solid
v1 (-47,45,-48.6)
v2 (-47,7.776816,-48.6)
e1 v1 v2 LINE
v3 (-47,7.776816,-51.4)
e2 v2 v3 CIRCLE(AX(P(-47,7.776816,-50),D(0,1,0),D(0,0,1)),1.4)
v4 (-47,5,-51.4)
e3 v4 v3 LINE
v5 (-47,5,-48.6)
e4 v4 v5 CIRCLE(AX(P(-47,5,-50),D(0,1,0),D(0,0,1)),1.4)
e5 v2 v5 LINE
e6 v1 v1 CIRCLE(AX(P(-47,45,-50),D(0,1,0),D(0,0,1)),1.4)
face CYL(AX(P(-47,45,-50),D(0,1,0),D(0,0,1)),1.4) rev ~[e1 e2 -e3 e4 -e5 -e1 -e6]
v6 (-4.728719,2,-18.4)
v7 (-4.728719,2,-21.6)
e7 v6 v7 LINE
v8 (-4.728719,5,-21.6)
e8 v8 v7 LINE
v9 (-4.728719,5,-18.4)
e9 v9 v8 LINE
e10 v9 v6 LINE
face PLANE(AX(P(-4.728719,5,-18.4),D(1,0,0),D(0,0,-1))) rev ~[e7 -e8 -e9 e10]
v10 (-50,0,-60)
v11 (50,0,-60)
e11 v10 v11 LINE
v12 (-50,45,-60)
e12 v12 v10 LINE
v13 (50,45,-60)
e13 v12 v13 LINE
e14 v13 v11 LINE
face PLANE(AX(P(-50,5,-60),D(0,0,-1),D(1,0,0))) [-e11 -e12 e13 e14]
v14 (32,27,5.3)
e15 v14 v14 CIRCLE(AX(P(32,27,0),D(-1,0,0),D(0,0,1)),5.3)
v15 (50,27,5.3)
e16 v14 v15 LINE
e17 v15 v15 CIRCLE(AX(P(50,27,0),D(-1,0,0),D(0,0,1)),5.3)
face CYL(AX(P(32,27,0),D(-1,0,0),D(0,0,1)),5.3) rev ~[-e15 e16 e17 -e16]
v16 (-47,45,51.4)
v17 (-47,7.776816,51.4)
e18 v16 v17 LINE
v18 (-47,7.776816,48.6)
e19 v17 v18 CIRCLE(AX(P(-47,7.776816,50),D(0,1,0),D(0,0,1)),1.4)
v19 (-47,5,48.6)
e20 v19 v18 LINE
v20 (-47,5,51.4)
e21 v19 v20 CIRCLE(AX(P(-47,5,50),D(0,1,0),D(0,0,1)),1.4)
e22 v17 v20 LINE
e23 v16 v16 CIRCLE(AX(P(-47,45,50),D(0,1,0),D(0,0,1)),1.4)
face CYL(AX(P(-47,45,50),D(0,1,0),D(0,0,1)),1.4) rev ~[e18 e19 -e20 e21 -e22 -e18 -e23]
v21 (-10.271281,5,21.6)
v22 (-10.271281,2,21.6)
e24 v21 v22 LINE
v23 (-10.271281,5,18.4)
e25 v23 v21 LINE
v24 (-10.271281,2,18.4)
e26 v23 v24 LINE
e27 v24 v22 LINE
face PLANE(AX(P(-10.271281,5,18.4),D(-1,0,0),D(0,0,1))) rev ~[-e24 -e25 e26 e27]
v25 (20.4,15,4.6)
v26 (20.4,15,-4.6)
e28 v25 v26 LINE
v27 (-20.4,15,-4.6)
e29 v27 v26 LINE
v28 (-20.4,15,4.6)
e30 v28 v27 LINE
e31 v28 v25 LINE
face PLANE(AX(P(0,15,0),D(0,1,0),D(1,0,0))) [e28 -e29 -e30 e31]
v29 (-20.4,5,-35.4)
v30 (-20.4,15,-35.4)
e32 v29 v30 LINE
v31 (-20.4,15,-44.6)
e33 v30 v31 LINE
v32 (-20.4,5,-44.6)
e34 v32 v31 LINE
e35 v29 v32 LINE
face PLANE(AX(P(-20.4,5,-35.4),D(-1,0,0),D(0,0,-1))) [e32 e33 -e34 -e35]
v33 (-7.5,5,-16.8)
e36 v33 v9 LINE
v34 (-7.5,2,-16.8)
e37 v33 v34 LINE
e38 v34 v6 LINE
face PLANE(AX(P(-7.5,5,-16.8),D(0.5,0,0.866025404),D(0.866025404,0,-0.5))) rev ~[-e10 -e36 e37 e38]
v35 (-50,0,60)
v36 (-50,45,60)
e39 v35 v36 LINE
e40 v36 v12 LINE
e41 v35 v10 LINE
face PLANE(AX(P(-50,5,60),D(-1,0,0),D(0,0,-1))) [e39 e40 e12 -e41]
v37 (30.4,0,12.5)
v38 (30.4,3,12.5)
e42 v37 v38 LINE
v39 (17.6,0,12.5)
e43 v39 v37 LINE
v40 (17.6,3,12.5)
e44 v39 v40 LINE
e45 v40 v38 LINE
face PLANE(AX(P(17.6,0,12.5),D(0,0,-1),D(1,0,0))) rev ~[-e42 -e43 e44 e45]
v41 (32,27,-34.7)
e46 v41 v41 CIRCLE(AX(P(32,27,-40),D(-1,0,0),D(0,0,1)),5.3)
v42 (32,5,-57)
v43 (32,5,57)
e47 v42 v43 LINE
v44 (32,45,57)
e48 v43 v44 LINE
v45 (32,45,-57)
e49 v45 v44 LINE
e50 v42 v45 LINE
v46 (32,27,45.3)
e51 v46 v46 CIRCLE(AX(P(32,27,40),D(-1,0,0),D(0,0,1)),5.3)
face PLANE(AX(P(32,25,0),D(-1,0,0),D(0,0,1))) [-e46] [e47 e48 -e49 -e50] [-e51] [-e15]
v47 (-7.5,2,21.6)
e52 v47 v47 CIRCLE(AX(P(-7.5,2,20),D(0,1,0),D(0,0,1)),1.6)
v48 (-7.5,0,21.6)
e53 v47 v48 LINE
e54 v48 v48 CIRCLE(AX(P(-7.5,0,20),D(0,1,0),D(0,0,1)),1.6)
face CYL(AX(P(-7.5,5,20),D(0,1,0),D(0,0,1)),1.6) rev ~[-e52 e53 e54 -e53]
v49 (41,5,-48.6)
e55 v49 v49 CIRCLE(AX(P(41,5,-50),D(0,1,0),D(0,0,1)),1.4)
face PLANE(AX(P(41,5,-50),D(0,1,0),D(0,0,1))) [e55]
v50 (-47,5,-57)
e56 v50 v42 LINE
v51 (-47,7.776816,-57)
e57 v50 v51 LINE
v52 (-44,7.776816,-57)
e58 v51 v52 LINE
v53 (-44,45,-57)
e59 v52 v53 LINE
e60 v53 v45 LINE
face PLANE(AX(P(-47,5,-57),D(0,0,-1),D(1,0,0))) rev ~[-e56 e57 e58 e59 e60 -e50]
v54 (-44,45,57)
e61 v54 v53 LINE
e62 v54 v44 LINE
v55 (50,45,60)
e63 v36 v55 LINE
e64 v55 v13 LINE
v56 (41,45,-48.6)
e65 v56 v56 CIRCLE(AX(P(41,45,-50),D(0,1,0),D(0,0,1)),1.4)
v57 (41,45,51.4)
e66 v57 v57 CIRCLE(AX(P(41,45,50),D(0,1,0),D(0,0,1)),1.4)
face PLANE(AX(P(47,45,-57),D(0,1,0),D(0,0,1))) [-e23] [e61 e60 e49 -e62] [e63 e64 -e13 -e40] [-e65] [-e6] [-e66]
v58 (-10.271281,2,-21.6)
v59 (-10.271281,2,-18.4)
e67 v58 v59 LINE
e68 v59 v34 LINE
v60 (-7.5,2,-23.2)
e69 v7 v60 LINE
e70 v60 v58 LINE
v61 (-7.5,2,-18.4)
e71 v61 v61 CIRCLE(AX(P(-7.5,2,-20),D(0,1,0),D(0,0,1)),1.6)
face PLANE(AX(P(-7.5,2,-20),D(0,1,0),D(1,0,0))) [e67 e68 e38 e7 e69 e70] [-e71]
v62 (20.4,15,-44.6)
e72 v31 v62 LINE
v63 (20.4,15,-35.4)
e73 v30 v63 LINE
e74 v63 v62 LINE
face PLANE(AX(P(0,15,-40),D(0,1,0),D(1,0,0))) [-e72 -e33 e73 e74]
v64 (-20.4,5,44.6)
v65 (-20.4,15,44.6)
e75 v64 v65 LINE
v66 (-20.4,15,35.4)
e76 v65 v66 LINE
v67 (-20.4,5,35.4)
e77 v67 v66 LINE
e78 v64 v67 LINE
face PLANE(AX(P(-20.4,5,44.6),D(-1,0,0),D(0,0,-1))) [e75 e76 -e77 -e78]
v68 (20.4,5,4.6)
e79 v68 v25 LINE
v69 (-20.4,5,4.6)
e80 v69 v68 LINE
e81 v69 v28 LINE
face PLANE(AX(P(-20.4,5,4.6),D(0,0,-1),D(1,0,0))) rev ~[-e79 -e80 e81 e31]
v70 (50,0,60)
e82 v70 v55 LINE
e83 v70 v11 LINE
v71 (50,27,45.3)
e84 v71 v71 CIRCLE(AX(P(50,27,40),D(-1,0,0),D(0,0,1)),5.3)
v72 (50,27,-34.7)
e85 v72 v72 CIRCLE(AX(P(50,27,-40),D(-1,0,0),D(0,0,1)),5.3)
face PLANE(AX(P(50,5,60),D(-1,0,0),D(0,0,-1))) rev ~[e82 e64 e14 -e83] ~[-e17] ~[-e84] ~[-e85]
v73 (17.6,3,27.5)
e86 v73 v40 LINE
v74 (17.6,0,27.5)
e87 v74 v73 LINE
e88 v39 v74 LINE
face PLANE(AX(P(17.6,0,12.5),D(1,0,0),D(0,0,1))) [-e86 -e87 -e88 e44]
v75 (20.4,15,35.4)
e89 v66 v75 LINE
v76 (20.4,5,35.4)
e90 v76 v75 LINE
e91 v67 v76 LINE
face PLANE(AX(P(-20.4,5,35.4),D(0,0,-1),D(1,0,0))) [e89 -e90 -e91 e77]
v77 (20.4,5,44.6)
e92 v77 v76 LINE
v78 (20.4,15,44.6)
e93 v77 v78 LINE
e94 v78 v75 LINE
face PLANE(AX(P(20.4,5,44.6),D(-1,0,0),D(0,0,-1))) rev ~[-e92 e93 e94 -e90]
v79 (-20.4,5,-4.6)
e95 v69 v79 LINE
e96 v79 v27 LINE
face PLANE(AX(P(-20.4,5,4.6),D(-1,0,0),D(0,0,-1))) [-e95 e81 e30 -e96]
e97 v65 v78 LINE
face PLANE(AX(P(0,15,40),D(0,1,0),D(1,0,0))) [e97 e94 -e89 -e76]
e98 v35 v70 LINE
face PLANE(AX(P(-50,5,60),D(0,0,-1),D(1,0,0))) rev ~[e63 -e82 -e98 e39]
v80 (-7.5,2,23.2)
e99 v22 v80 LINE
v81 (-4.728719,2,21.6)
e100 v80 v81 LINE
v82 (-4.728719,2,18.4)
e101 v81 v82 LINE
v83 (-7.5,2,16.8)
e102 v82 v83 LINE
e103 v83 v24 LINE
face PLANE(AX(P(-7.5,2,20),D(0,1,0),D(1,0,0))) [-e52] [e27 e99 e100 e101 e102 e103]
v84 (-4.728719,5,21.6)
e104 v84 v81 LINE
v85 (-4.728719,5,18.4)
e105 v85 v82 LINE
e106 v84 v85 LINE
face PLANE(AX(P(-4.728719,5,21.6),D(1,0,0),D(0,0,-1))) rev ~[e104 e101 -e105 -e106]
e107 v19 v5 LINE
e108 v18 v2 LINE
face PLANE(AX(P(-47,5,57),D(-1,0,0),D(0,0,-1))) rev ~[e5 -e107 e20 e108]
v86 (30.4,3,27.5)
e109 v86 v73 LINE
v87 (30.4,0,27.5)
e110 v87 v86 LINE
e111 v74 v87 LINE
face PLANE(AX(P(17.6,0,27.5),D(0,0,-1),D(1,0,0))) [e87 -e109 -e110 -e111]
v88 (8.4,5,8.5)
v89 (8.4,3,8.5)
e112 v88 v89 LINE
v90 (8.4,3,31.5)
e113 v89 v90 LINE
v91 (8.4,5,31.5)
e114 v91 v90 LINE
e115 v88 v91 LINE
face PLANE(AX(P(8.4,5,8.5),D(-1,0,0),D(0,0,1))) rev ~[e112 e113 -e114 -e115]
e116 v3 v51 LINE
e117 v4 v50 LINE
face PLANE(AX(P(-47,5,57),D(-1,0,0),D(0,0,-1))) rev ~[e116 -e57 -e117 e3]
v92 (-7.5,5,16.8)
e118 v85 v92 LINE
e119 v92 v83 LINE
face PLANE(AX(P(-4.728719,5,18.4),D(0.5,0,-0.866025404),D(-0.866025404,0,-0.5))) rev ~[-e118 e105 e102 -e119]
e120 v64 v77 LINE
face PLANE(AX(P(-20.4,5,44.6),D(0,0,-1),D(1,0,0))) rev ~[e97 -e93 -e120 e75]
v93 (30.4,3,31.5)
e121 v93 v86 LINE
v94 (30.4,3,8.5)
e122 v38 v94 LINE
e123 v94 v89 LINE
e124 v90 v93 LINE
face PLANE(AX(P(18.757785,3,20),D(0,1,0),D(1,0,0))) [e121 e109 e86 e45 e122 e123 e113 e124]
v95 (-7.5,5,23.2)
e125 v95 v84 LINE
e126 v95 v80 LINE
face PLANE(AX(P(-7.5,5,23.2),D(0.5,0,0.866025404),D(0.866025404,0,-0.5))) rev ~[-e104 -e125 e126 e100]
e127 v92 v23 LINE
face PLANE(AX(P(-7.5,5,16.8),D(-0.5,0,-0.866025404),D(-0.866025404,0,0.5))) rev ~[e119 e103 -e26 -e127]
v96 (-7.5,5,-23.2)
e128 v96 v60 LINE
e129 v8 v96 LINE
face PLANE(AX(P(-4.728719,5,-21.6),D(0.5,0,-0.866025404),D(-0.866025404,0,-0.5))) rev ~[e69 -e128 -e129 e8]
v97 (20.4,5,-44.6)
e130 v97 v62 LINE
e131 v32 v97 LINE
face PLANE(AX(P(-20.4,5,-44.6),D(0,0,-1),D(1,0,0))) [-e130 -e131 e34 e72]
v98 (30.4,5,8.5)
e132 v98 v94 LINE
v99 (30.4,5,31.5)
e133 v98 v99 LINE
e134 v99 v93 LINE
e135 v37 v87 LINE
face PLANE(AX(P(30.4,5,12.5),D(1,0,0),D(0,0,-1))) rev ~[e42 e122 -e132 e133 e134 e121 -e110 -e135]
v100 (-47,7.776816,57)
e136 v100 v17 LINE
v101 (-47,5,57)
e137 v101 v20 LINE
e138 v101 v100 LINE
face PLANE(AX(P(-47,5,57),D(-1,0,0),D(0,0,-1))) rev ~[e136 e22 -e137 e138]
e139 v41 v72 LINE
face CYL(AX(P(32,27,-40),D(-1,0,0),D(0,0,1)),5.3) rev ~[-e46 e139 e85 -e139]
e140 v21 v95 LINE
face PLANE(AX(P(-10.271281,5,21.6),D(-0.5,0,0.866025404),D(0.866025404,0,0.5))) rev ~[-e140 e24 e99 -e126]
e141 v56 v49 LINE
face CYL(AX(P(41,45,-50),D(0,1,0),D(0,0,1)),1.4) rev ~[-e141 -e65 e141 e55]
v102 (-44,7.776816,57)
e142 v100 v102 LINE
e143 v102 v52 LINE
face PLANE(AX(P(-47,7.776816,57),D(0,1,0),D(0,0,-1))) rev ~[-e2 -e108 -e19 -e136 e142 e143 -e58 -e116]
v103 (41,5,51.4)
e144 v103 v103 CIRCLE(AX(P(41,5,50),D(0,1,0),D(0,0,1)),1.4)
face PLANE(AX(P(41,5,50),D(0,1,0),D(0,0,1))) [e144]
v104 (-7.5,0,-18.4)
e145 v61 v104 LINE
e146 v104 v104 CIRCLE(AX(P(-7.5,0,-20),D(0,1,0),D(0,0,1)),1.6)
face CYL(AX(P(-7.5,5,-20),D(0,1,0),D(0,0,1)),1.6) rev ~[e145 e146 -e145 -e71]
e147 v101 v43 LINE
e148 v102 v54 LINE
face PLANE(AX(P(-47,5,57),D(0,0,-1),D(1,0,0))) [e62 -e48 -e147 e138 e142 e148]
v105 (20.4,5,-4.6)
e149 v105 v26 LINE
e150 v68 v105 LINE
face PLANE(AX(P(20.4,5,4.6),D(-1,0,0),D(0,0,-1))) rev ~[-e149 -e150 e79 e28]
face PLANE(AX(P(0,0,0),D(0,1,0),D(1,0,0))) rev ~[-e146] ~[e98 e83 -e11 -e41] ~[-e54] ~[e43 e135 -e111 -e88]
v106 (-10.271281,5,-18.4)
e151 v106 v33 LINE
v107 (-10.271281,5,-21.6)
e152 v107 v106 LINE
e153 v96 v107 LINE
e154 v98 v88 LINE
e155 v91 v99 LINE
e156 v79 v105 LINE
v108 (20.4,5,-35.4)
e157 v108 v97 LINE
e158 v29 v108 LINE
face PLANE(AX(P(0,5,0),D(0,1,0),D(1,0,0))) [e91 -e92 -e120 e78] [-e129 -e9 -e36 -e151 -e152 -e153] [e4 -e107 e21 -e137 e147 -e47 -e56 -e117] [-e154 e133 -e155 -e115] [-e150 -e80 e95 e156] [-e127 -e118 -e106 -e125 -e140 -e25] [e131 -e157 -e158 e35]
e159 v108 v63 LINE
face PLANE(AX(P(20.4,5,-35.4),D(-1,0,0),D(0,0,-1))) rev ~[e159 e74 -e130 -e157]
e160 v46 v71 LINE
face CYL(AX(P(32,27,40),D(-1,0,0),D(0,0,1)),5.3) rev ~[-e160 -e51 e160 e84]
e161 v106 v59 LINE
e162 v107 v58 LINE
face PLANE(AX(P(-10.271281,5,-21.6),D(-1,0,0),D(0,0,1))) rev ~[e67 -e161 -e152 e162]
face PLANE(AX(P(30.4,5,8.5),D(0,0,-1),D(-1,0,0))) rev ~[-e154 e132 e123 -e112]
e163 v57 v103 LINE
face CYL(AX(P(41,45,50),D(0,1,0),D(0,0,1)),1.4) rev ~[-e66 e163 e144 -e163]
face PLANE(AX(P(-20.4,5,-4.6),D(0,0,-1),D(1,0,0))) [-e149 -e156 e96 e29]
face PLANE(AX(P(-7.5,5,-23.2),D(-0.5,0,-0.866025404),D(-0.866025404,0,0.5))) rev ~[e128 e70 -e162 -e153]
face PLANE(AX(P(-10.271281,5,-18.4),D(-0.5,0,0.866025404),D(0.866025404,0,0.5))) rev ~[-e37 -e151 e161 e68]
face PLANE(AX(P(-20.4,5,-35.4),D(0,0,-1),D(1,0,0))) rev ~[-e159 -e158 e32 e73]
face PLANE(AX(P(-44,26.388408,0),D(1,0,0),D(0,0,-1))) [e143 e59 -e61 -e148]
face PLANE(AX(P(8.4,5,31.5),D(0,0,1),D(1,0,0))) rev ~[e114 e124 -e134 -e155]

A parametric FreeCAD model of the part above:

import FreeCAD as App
import Part
import Sketcher
Q = App.Units.Quantity

doc = App.newDocument("Part")
body = doc.addObject("PartDesign::Body", "Body")

sketch1 = doc.addObject("Sketcher::SketchObject", "Sketch")
body.addObject(sketch1)
sketch1.AttachmentSupport = (doc.XZ_Plane, [""])
sketch1.MapMode = "FlatFace"
sketch1.addGeometry(Part.LineSegment(App.Vector(-50, -60, 0), App.Vector(-50, 60, 0)), False)
sketch1.addGeometry(Part.LineSegment(App.Vector(-50, 60, 0), App.Vector(50, 60, 0)), False)
sketch1.addGeometry(Part.LineSegment(App.Vector(50, 60, 0), App.Vector(50, -60, 0)), False)
sketch1.addGeometry(Part.LineSegment(App.Vector(50, -60, 0), App.Vector(-50, -60, 0)), False)
sketch1.addConstraint(Sketcher.Constraint("Coincident", 0, 2, 1, 1))
sketch1.addConstraint(Sketcher.Constraint("Coincident", 1, 2, 2, 1))
sketch1.addConstraint(Sketcher.Constraint("Coincident", 2, 2, 3, 1))
sketch1.addConstraint(Sketcher.Constraint("Coincident", 3, 2, 0, 1))
sketch1.addConstraint(Sketcher.Constraint("Vertical", 0))
sketch1.addConstraint(Sketcher.Constraint("Horizontal", 1))
sketch1.addConstraint(Sketcher.Constraint("Vertical", 2))
sketch1.addConstraint(Sketcher.Constraint("Horizontal", 3))
sketch1.addConstraint(Sketcher.Constraint("Symmetric", 0, 2, 2, 2, -1, 1))
sketch1.addConstraint(Sketcher.Constraint("DistanceX", 1, 1, 1, 2, 100.0))
sketch1.addConstraint(Sketcher.Constraint("DistanceY", 0, 1, 0, 2, 120.0))
pad1 = doc.addObject("PartDesign::Pad", "Pad")
body.addObject(pad1)
pad1.Profile = sketch1
pad1.Length = 5
pad1.Reversed = True

sketch2 = doc.addObject("Sketcher::SketchObject", "Sketch001")
body.addObject(sketch2)
sketch2.AttachmentSupport = (doc.XZ_Plane, [""])
sketch2.MapMode = "FlatFace"
sketch2.AttachmentOffset = App.Placement(App.Vector(0, 0, -5), App.Rotation())
sketch2.addGeometry(Part.LineSegment(App.Vector(-50, -60, 0), App.Vector(-50, 60, 0)), False)
sketch2.addGeometry(Part.LineSegment(App.Vector(-50, 60, 0), App.Vector(50, 60, 0)), False)
sketch2.addGeometry(Part.LineSegment(App.Vector(50, 60, 0), App.Vector(50, -60, 0)), False)
sketch2.addGeometry(Part.LineSegment(App.Vector(50, -60, 0), App.Vector(-50, -60, 0)), False)
sketch2.addGeometry(Part.LineSegment(App.Vector(47, 57, 0), App.Vector(-47, 57, 0)), False)
sketch2.addGeometry(Part.LineSegment(App.Vector(-47, 57, 0), App.Vector(-47, -57, 0)), False)
sketch2.addGeometry(Part.LineSegment(App.Vector(-47, -57, 0), App.Vector(47, -57, 0)), False)
sketch2.addGeometry(Part.LineSegment(App.Vector(47, -57, 0), App.Vector(47, 57, 0)), False)
sketch2.addConstraint(Sketcher.Constraint("Coincident", 0, 2, 1, 1))
sketch2.addConstraint(Sketcher.Constraint("Coincident", 1, 2, 2, 1))
sketch2.addConstraint(Sketcher.Constraint("Coincident", 2, 2, 3, 1))
sketch2.addConstraint(Sketcher.Constraint("Coincident", 3, 2, 0, 1))
sketch2.addConstraint(Sketcher.Constraint("Coincident", 4, 2, 5, 1))
sketch2.addConstraint(Sketcher.Constraint("Coincident", 5, 2, 6, 1))
sketch2.addConstraint(Sketcher.Constraint("Coincident", 6, 2, 7, 1))
sketch2.addConstraint(Sketcher.Constraint("Coincident", 7, 2, 4, 1))
sketch2.addConstraint(Sketcher.Constraint("Vertical", 0))
sketch2.addConstraint(Sketcher.Constraint("Horizontal", 1))
sketch2.addConstraint(Sketcher.Constraint("Vertical", 2))
sketch2.addConstraint(Sketcher.Constraint("Horizontal", 3))
sketch2.addConstraint(Sketcher.Constraint("Horizontal", 4))
sketch2.addConstraint(Sketcher.Constraint("Vertical", 5))
sketch2.addConstraint(Sketcher.Constraint("Horizontal", 6))
sketch2.addConstraint(Sketcher.Constraint("Vertical", 7))
sketch2.addConstraint(Sketcher.Constraint("Symmetric", 0, 2, 2, 2, -1, 1))
sketch2.addConstraint(Sketcher.Constraint("Symmetric", 4, 2, 6, 2, -1, 1))
sketch2.addConstraint(Sketcher.Constraint("DistanceX", 1, 1, 1, 2, 100.0))
sketch2.addConstraint(Sketcher.Constraint("DistanceX", 4, 2, 4, 1, 94.0))
sketch2.addConstraint(Sketcher.Constraint("DistanceY", 0, 1, 0, 2, 120.0))
sketch2.addConstraint(Sketcher.Constraint("DistanceY", 5, 2, 5, 1, 114.0))
pad2 = doc.addObject("PartDesign::Pad", "Pad001")
body.addObject(pad2)
pad2.Profile = sketch2
pad2.Length = 40
pad2.Reversed = True

sketch3 = doc.addObject("Sketcher::SketchObject", "Sketch002")
body.addObject(sketch3)
sketch3.AttachmentSupport = (doc.XZ_Plane, [""])
sketch3.MapMode = "FlatFace"
sketch3.AttachmentOffset = App.Placement(App.Vector(0, 0, -5), App.Rotation())
sketch3.addGeometry(Part.LineSegment(App.Vector(-20.4, -44.6, 0), App.Vector(-20.4, -35.4, 0)), False)
sketch3.addGeometry(Part.LineSegment(App.Vector(-20.4, -35.4, 0), App.Vector(20.4, -35.4, 0)), False)
sketch3.addGeometry(Part.LineSegment(App.Vector(20.4, -35.4, 0), App.Vector(20.4, -44.6, 0)), False)
sketch3.addGeometry(Part.LineSegment(App.Vector(20.4, -44.6, 0), App.Vector(-20.4, -44.6, 0)), False)
sketch3.addGeometry(Part.LineSegment(App.Vector(-20.4, -4.6, 0), App.Vector(-20.4, 4.6, 0)), False)
sketch3.addGeometry(Part.LineSegment(App.Vector(-20.4, 4.6, 0), App.Vector(20.4, 4.6, 0)), False)
sketch3.addGeometry(Part.LineSegment(App.Vector(20.4, 4.6, 0), App.Vector(20.4, -4.6, 0)), False)
sketch3.addGeometry(Part.LineSegment(App.Vector(20.4, -4.6, 0), App.Vector(-20.4, -4.6, 0)), False)
sketch3.addGeometry(Part.LineSegment(App.Vector(-20.4, 35.4, 0), App.Vector(-20.4, 44.6, 0)), False)
sketch3.addGeometry(Part.LineSegment(App.Vector(-20.4, 44.6, 0), App.Vector(20.4, 44.6, 0)), False)
sketch3.addGeometry(Part.LineSegment(App.Vector(20.4, 44.6, 0), App.Vector(20.4, 35.4, 0)), False)
sketch3.addGeometry(Part.LineSegment(App.Vector(20.4, 35.4, 0), App.Vector(-20.4, 35.4, 0)), False)
sketch3.addConstraint(Sketcher.Constraint("Coincident", 0, 2, 1, 1))
sketch3.addConstraint(Sketcher.Constraint("Coincident", 1, 2, 2, 1))
sketch3.addConstraint(Sketcher.Constraint("Coincident", 2, 2, 3, 1))
sketch3.addConstraint(Sketcher.Constraint("Coincident", 3, 2, 0, 1))
sketch3.addConstraint(Sketcher.Constraint("Coincident", 4, 2, 5, 1))
sketch3.addConstraint(Sketcher.Constraint("Coincident", 5, 2, 6, 1))
sketch3.addConstraint(Sketcher.Constraint("Coincident", 6, 2, 7, 1))
sketch3.addConstraint(Sketcher.Constraint("Coincident", 7, 2, 4, 1))
sketch3.addConstraint(Sketcher.Constraint("Coincident", 8, 2, 9, 1))
sketch3.addConstraint(Sketcher.Constraint("Coincident", 9, 2, 10, 1))
sketch3.addConstraint(Sketcher.Constraint("Coincident", 10, 2, 11, 1))
sketch3.addConstraint(Sketcher.Constraint("Coincident", 11, 2, 8, 1))
sketch3.addConstraint(Sketcher.Constraint("Vertical", 0))
sketch3.addConstraint(Sketcher.Constraint("Horizontal", 1))
sketch3.addConstraint(Sketcher.Constraint("Vertical", 2))
sketch3.addConstraint(Sketcher.Constraint("Horizontal", 3))
sketch3.addConstraint(Sketcher.Constraint("Vertical", 4))
sketch3.addConstraint(Sketcher.Constraint("Horizontal", 5))
sketch3.addConstraint(Sketcher.Constraint("Vertical", 6))
sketch3.addConstraint(Sketcher.Constraint("Horizontal", 7))
sketch3.addConstraint(Sketcher.Constraint("Vertical", 8))
sketch3.addConstraint(Sketcher.Constraint("Horizontal", 9))
sketch3.addConstraint(Sketcher.Constraint("Vertical", 10))
sketch3.addConstraint(Sketcher.Constraint("Horizontal", 11))
sketch3.addConstraint(Sketcher.Constraint("Symmetric", 4, 2, 6, 2, -1, 1))
sketch3.addConstraint(Sketcher.Constraint("Symmetric", 2, 2, 8, 2, -1, 1))
sketch3.addConstraint(Sketcher.Constraint("Symmetric", 0, 2, 10, 2, -1, 1))
sketch3.addConstraint(Sketcher.Constraint("Vertical", 3, 2, 4, 2))
sketch3.addConstraint(Sketcher.Constraint("Vertical", 2, 2, 5, 2))
sketch3.addConstraint(Sketcher.Constraint("Equal", 2, 4))
sketch3.addConstraint(Sketcher.Constraint("DistanceX", 1, 1, 1, 2, 40.8))
sketch3.addConstraint(Sketcher.Constraint("DistanceY", 0, 1, 0, 2, 9.2))
sketch3.addConstraint(Sketcher.Constraint("DistanceY", 0, 2, 4, 2, 40.0))
pad3 = doc.addObject("PartDesign::Pad", "Pad002")
body.addObject(pad3)
pad3.Profile = sketch3
pad3.Length = 10
pad3.Reversed = True

sketch4 = doc.addObject("Sketcher::SketchObject", "Sketch003")
body.addObject(sketch4)
sketch4.AttachmentSupport = (doc.YZ_Plane, [""])
sketch4.MapMode = "FlatFace"
sketch4.AttachmentOffset = App.Placement(App.Vector(0, 0, 47), App.Rotation())
sketch4.addGeometry(Part.LineSegment(App.Vector(45, -57, 0), App.Vector(5, -57, 0)), False)
sketch4.addGeometry(Part.LineSegment(App.Vector(5, -57, 0), App.Vector(5, 57, 0)), False)
sketch4.addGeometry(Part.LineSegment(App.Vector(5, 57, 0), App.Vector(45, 57, 0)), False)
sketch4.addGeometry(Part.LineSegment(App.Vector(45, 57, 0), App.Vector(45, -57, 0)), False)
sketch4.addConstraint(Sketcher.Constraint("Coincident", 0, 2, 1, 1))
sketch4.addConstraint(Sketcher.Constraint("Coincident", 1, 2, 2, 1))
sketch4.addConstraint(Sketcher.Constraint("Coincident", 2, 2, 3, 1))
sketch4.addConstraint(Sketcher.Constraint("Coincident", 3, 2, 0, 1))
sketch4.addConstraint(Sketcher.Constraint("Horizontal", 0))
sketch4.addConstraint(Sketcher.Constraint("Vertical", 1))
sketch4.addConstraint(Sketcher.Constraint("Horizontal", 2))
sketch4.addConstraint(Sketcher.Constraint("Vertical", 3))
sketch4.addConstraint(Sketcher.Constraint("DistanceX", 0, 2, 0, 1, 40.0))
sketch4.addConstraint(Sketcher.Constraint("DistanceY", 1, 1, 1, 2, 114.0))
sketch4.addConstraint(Sketcher.Constraint("DistanceX", -1, 1, 0, 2, 5.0))
sketch4.addConstraint(Sketcher.Constraint("DistanceY", 0, 2, -1, 1, 57.0))
pad4 = doc.addObject("PartDesign::Pad", "Pad003")
body.addObject(pad4)
pad4.Profile = sketch4
pad4.Length = 15
pad4.Reversed = True

sketch5 = doc.addObject("Sketcher::SketchObject", "Sketch004")
body.addObject(sketch5)
sketch5.AttachmentSupport = (doc.YZ_Plane, [""])
sketch5.MapMode = "FlatFace"
sketch5.AttachmentOffset = App.Placement(App.Vector(0, 0, 32), App.Rotation())
sketch5.addGeometry(Part.Circle(App.Vector(27, -40, 0), App.Vector(0, 0, 1), 5.3), False)
sketch5.addGeometry(Part.Circle(App.Vector(27, 0, 0), App.Vector(0, 0, 1), 5.3), False)
sketch5.addGeometry(Part.Circle(App.Vector(27, 40, 0), App.Vector(0, 0, 1), 5.3), False)
sketch5.addConstraint(Sketcher.Constraint("Equal", 0, 1))
sketch5.addConstraint(Sketcher.Constraint("Equal", 1, 2))
sketch5.addConstraint(Sketcher.Constraint("Symmetric", 0, 3, 2, 3, -1))
sketch5.addConstraint(Sketcher.Constraint("PointOnObject", 1, 3, -1))
sketch5.addConstraint(Sketcher.Constraint("Vertical", 0, 3, 1, 3))
sketch5.addConstraint(Sketcher.Constraint("Diameter", 0, 10.6))
sketch5.addConstraint(Sketcher.Constraint("DistanceX", -1, 1, 0, 3, 27.0))
sketch5.addConstraint(Sketcher.Constraint("DistanceY", 0, 3, -1, 1, 40.0))
pocket1 = doc.addObject("PartDesign::Pocket", "Pocket")
body.addObject(pocket1)
pocket1.Profile = sketch5
pocket1.Length = 18
pocket1.Reversed = True

sketch6 = doc.addObject("Sketcher::SketchObject", "Sketch005")
body.addObject(sketch6)
sketch6.AttachmentSupport = (doc.XZ_Plane, [""])
sketch6.MapMode = "FlatFace"
sketch6.AttachmentOffset = App.Placement(App.Vector(0, 0, -5), App.Rotation())
sketch6.addGeometry(Part.Circle(App.Vector(-7.5, 20, 0), App.Vector(0, 0, 1), 1.6), False)
sketch6.addGeometry(Part.Circle(App.Vector(-7.5, -20, 0), App.Vector(0, 0, 1), 1.6), False)
sketch6.addConstraint(Sketcher.Constraint("Equal", 0, 1))
sketch6.addConstraint(Sketcher.Constraint("Symmetric", 0, 3, 1, 3, -1))
sketch6.addConstraint(Sketcher.Constraint("Diameter", 0, 3.2))
sketch6.addConstraint(Sketcher.Constraint("DistanceY", -1, 1, 0, 3, 20.0))
sketch6.addConstraint(Sketcher.Constraint("DistanceX", 0, 3, -1, 1, 7.5))
pocket2 = doc.addObject("PartDesign::Pocket", "Pocket001")
body.addObject(pocket2)
pocket2.Profile = sketch6
pocket2.Type = "ThroughAll"
pocket2.Reversed = True

sketch7 = doc.addObject("Sketcher::SketchObject", "Sketch006")
body.addObject(sketch7)
sketch7.AttachmentSupport = (doc.XZ_Plane, [""])
sketch7.MapMode = "FlatFace"
sketch7.AttachmentOffset = App.Placement(App.Vector(0, 0, -5), App.Rotation())
sketch7.addGeometry(Part.LineSegment(App.Vector(-10.271281, 21.6, 0), App.Vector(-7.5, 23.2, 0)), False)
sketch7.addGeometry(Part.LineSegment(App.Vector(-7.5, 23.2, 0), App.Vector(-4.728719, 21.6, 0)), False)
sketch7.addGeometry(Part.LineSegment(App.Vector(-4.728719, 21.6, 0), App.Vector(-4.728719, 18.4, 0)), False)
sketch7.addGeometry(Part.LineSegment(App.Vector(-4.728719, 18.4, 0), App.Vector(-7.5, 16.8, 0)), False)
sketch7.addGeometry(Part.LineSegment(App.Vector(-7.5, 16.8, 0), App.Vector(-10.271281, 18.4, 0)), False)
sketch7.addGeometry(Part.LineSegment(App.Vector(-10.271281, 18.4, 0), App.Vector(-10.271281, 21.6, 0)), False)
sketch7.addGeometry(Part.LineSegment(App.Vector(-10.271281, -21.6, 0), App.Vector(-10.271281, -18.4, 0)), False)
sketch7.addGeometry(Part.LineSegment(App.Vector(-10.271281, -18.4, 0), App.Vector(-7.5, -16.8, 0)), False)
sketch7.addGeometry(Part.LineSegment(App.Vector(-7.5, -16.8, 0), App.Vector(-4.728719, -18.4, 0)), False)
sketch7.addGeometry(Part.LineSegment(App.Vector(-4.728719, -18.4, 0), App.Vector(-4.728719, -21.6, 0)), False)
sketch7.addGeometry(Part.LineSegment(App.Vector(-4.728719, -21.6, 0), App.Vector(-7.5, -23.2, 0)), False)
sketch7.addGeometry(Part.LineSegment(App.Vector(-7.5, -23.2, 0), App.Vector(-10.271281, -21.6, 0)), False)
sketch7.addConstraint(Sketcher.Constraint("Coincident", 0, 2, 1, 1))
sketch7.addConstraint(Sketcher.Constraint("Coincident", 1, 2, 2, 1))
sketch7.addConstraint(Sketcher.Constraint("Coincident", 2, 2, 3, 1))
sketch7.addConstraint(Sketcher.Constraint("Coincident", 3, 2, 4, 1))
sketch7.addConstraint(Sketcher.Constraint("Coincident", 4, 2, 5, 1))
sketch7.addConstraint(Sketcher.Constraint("Coincident", 5, 2, 0, 1))
sketch7.addConstraint(Sketcher.Constraint("Coincident", 6, 2, 7, 1))
sketch7.addConstraint(Sketcher.Constraint("Coincident", 7, 2, 8, 1))
sketch7.addConstraint(Sketcher.Constraint("Coincident", 8, 2, 9, 1))
sketch7.addConstraint(Sketcher.Constraint("Coincident", 9, 2, 10, 1))
sketch7.addConstraint(Sketcher.Constraint("Coincident", 10, 2, 11, 1))
sketch7.addConstraint(Sketcher.Constraint("Coincident", 11, 2, 6, 1))
sketch7.addConstraint(Sketcher.Constraint("Vertical", 2))
sketch7.addConstraint(Sketcher.Constraint("Vertical", 5))
sketch7.addConstraint(Sketcher.Constraint("Vertical", 6))
sketch7.addConstraint(Sketcher.Constraint("Vertical", 9))
sketch7.addConstraint(Sketcher.Constraint("Symmetric", 4, 2, 6, 2, -1))
sketch7.addConstraint(Sketcher.Constraint("Symmetric", 3, 2, 7, 2, -1))
sketch7.addConstraint(Sketcher.Constraint("Symmetric", 2, 2, 8, 2, -1))
sketch7.addConstraint(Sketcher.Constraint("Symmetric", 0, 2, 10, 2, -1))
sketch7.addConstraint(Sketcher.Constraint("Parallel", 0, 3))
sketch7.addConstraint(Sketcher.Constraint("Parallel", 1, 4))
sketch7.addConstraint(Sketcher.Constraint("Parallel", 3, 7))
sketch7.addConstraint(Sketcher.Constraint("Parallel", 7, 10))
sketch7.addConstraint(Sketcher.Constraint("Parallel", 8, 11))
sketch7.addConstraint(Sketcher.Constraint("Horizontal", 2, 2, 4, 2))
sketch7.addConstraint(Sketcher.Constraint("Horizontal", 1, 2, 5, 2))
sketch7.addConstraint(Sketcher.Constraint("Angle", 0, Q("30 deg")))
sketch7.addConstraint(Sketcher.Constraint("DistanceY", 2, 2, 2, 1, 3.2))
sketch7.addConstraint(Sketcher.Constraint("DistanceY", 6, 2, 5, 2, 40.0))
sketch7.addConstraint(Sketcher.Constraint("Distance", 0, 3.2))
sketch7.addConstraint(Sketcher.Constraint("DistanceX", 0, 2, -1, 1, 7.5))
pocket3 = doc.addObject("PartDesign::Pocket", "Pocket002")
body.addObject(pocket3)
pocket3.Profile = sketch7
pocket3.Length = 3
pocket3.Reversed = True

sketch8 = doc.addObject("Sketcher::SketchObject", "Sketch007")
body.addObject(sketch8)
sketch8.AttachmentSupport = (doc.YZ_Plane, [""])
sketch8.MapMode = "FlatFace"
sketch8.AttachmentOffset = App.Placement(App.Vector(0, 0, -47), App.Rotation())
sketch8.addGeometry(Part.LineSegment(App.Vector(45, 57, 0), App.Vector(7.776816, 57, 0)), False)
sketch8.addGeometry(Part.LineSegment(App.Vector(7.776816, 57, 0), App.Vector(7.776816, -57, 0)), False)
sketch8.addGeometry(Part.LineSegment(App.Vector(7.776816, -57, 0), App.Vector(45, -57, 0)), False)
sketch8.addGeometry(Part.LineSegment(App.Vector(45, -57, 0), App.Vector(45, 57, 0)), False)
sketch8.addConstraint(Sketcher.Constraint("Coincident", 0, 2, 1, 1))
sketch8.addConstraint(Sketcher.Constraint("Coincident", 1, 2, 2, 1))
sketch8.addConstraint(Sketcher.Constraint("Coincident", 2, 2, 3, 1))
sketch8.addConstraint(Sketcher.Constraint("Coincident", 3, 2, 0, 1))
sketch8.addConstraint(Sketcher.Constraint("Horizontal", 0))
sketch8.addConstraint(Sketcher.Constraint("Vertical", 1))
sketch8.addConstraint(Sketcher.Constraint("Horizontal", 2))
sketch8.addConstraint(Sketcher.Constraint("Vertical", 3))
sketch8.addConstraint(Sketcher.Constraint("DistanceY", 1, 2, 1, 1, 114.0))
sketch8.addConstraint(Sketcher.Constraint("DistanceY", -1, 1, 0, 2, 57.0))
sketch8.addConstraint(Sketcher.Constraint("DistanceX", -1, 1, 2, 2, 45.0))
sketch8.addConstraint(Sketcher.Constraint("DistanceX", 0, 2, 0, 1, 37.223184))
pad5 = doc.addObject("PartDesign::Pad", "Pad004")
body.addObject(pad5)
pad5.Profile = sketch8
pad5.Length = 3

sketch9 = doc.addObject("Sketcher::SketchObject", "Sketch008")
body.addObject(sketch9)
sketch9.AttachmentSupport = (doc.XZ_Plane, [""])
sketch9.MapMode = "FlatFace"
sketch9.AttachmentOffset = App.Placement(App.Vector(0, 0, -45), App.Rotation())
sketch9.addGeometry(Part.Circle(App.Vector(41, 50, 0), App.Vector(0, 0, 1), 1.4), False)
sketch9.addGeometry(Part.Circle(App.Vector(41, -50, 0), App.Vector(0, 0, 1), 1.4), False)
sketch9.addGeometry(Part.Circle(App.Vector(-47, -50, 0), App.Vector(0, 0, 1), 1.4), False)
sketch9.addGeometry(Part.Circle(App.Vector(-47, 50, 0), App.Vector(0, 0, 1), 1.4), False)
sketch9.addConstraint(Sketcher.Constraint("Equal", 0, 1))
sketch9.addConstraint(Sketcher.Constraint("Equal", 1, 2))
sketch9.addConstraint(Sketcher.Constraint("Equal", 2, 3))
sketch9.addConstraint(Sketcher.Constraint("Symmetric", 0, 3, 1, 3, -1))
sketch9.addConstraint(Sketcher.Constraint("Symmetric", 2, 3, 3, 3, -1))
sketch9.addConstraint(Sketcher.Constraint("Horizontal", 1, 3, 2, 3))
sketch9.addConstraint(Sketcher.Constraint("Diameter", 0, 2.8))
sketch9.addConstraint(Sketcher.Constraint("DistanceX", -1, 1, 0, 3, 41.0))
sketch9.addConstraint(Sketcher.Constraint("DistanceY", -1, 1, 0, 3, 50.0))
sketch9.addConstraint(Sketcher.Constraint("DistanceX", 2, 3, -1, 1, 47.0))
pocket4 = doc.addObject("PartDesign::Pocket", "Pocket003")
body.addObject(pocket4)
pocket4.Profile = sketch9
pocket4.Length = 40
pocket4.Reversed = True

sketch10 = doc.addObject("Sketcher::SketchObject", "Sketch009")
body.addObject(sketch10)
sketch10.AttachmentSupport = (doc.XZ_Plane, [""])
sketch10.MapMode = "FlatFace"
sketch10.addGeometry(Part.LineSegment(App.Vector(17.6, 27.5, 0), App.Vector(17.6, 12.5, 0)), False)
sketch10.addGeometry(Part.LineSegment(App.Vector(17.6, 12.5, 0), App.Vector(30.4, 12.5, 0)), False)
sketch10.addGeometry(Part.LineSegment(App.Vector(30.4, 12.5, 0), App.Vector(30.4, 27.5, 0)), False)
sketch10.addGeometry(Part.LineSegment(App.Vector(30.4, 27.5, 0), App.Vector(17.6, 27.5, 0)), False)
sketch10.addConstraint(Sketcher.Constraint("Coincident", 0, 2, 1, 1))
sketch10.addConstraint(Sketcher.Constraint("Coincident", 1, 2, 2, 1))
sketch10.addConstraint(Sketcher.Constraint("Coincident", 2, 2, 3, 1))
sketch10.addConstraint(Sketcher.Constraint("Coincident", 3, 2, 0, 1))
sketch10.addConstraint(Sketcher.Constraint("Vertical", 0))
sketch10.addConstraint(Sketcher.Constraint("Horizontal", 1))
sketch10.addConstraint(Sketcher.Constraint("Vertical", 2))
sketch10.addConstraint(Sketcher.Constraint("Horizontal", 3))
sketch10.addConstraint(Sketcher.Constraint("DistanceY", 0, 2, 0, 1, 15.0))
sketch10.addConstraint(Sketcher.Constraint("DistanceX", 1, 1, 1, 2, 12.8))
sketch10.addConstraint(Sketcher.Constraint("DistanceX", -1, 1, 0, 2, 17.6))
sketch10.addConstraint(Sketcher.Constraint("DistanceY", -1, 1, 0, 2, 12.5))
pocket5 = doc.addObject("PartDesign::Pocket", "Pocket004")
body.addObject(pocket5)
pocket5.Profile = sketch10
pocket5.Length = 5

sketch11 = doc.addObject("Sketcher::SketchObject", "Sketch010")
body.addObject(sketch11)
sketch11.AttachmentSupport = (doc.XZ_Plane, [""])
sketch11.MapMode = "FlatFace"
sketch11.AttachmentOffset = App.Placement(App.Vector(0, 0, -5), App.Rotation())
sketch11.addGeometry(Part.LineSegment(App.Vector(30.4, 12.5, 0), App.Vector(30.4, 8.5, 0)), False)
sketch11.addGeometry(Part.LineSegment(App.Vector(30.4, 8.5, 0), App.Vector(8.4, 8.5, 0)), False)
sketch11.addGeometry(Part.LineSegment(App.Vector(8.4, 8.5, 0), App.Vector(8.4, 31.5, 0)), False)
sketch11.addGeometry(Part.LineSegment(App.Vector(8.4, 31.5, 0), App.Vector(30.4, 31.5, 0)), False)
sketch11.addGeometry(Part.LineSegment(App.Vector(30.4, 31.5, 0), App.Vector(30.4, 27.5, 0)), False)
sketch11.addGeometry(Part.LineSegment(App.Vector(30.4, 27.5, 0), App.Vector(17.6, 27.5, 0)), False)
sketch11.addGeometry(Part.LineSegment(App.Vector(17.6, 27.5, 0), App.Vector(17.6, 12.5, 0)), False)
sketch11.addGeometry(Part.LineSegment(App.Vector(17.6, 12.5, 0), App.Vector(30.4, 12.5, 0)), False)
sketch11.addConstraint(Sketcher.Constraint("Coincident", 0, 2, 1, 1))
sketch11.addConstraint(Sketcher.Constraint("Coincident", 1, 2, 2, 1))
sketch11.addConstraint(Sketcher.Constraint("Coincident", 2, 2, 3, 1))
sketch11.addConstraint(Sketcher.Constraint("Coincident", 3, 2, 4, 1))
sketch11.addConstraint(Sketcher.Constraint("Coincident", 4, 2, 5, 1))
sketch11.addConstraint(Sketcher.Constraint("Coincident", 5, 2, 6, 1))
sketch11.addConstraint(Sketcher.Constraint("Coincident", 6, 2, 7, 1))
sketch11.addConstraint(Sketcher.Constraint("Coincident", 7, 2, 0, 1))
sketch11.addConstraint(Sketcher.Constraint("Vertical", 0))
sketch11.addConstraint(Sketcher.Constraint("Horizontal", 1))
sketch11.addConstraint(Sketcher.Constraint("Vertical", 2))
sketch11.addConstraint(Sketcher.Constraint("Horizontal", 3))
sketch11.addConstraint(Sketcher.Constraint("Vertical", 4))
sketch11.addConstraint(Sketcher.Constraint("Horizontal", 5))
sketch11.addConstraint(Sketcher.Constraint("Vertical", 6))
sketch11.addConstraint(Sketcher.Constraint("Horizontal", 7))
sketch11.addConstraint(Sketcher.Constraint("Vertical", 0, 2, 3, 2))
sketch11.addConstraint(Sketcher.Constraint("Equal", 0, 4))
sketch11.addConstraint(Sketcher.Constraint("DistanceX", 1, 2, 1, 1, 22.0))
sketch11.addConstraint(Sketcher.Constraint("DistanceY", 0, 2, 0, 1, 4.0))
sketch11.addConstraint(Sketcher.Constraint("DistanceY", 2, 1, 2, 2, 23.0))
sketch11.addConstraint(Sketcher.Constraint("DistanceX", 5, 2, 5, 1, 12.8))
sketch11.addConstraint(Sketcher.Constraint("DistanceX", -1, 1, 0, 2, 30.4))
sketch11.addConstraint(Sketcher.Constraint("DistanceY", -1, 1, 0, 2, 8.5))
pocket6 = doc.addObject("PartDesign::Pocket", "Pocket005")
body.addObject(pocket6)
pocket6.Profile = sketch11
pocket6.Length = 2
pocket6.Reversed = True

doc.recompute()
